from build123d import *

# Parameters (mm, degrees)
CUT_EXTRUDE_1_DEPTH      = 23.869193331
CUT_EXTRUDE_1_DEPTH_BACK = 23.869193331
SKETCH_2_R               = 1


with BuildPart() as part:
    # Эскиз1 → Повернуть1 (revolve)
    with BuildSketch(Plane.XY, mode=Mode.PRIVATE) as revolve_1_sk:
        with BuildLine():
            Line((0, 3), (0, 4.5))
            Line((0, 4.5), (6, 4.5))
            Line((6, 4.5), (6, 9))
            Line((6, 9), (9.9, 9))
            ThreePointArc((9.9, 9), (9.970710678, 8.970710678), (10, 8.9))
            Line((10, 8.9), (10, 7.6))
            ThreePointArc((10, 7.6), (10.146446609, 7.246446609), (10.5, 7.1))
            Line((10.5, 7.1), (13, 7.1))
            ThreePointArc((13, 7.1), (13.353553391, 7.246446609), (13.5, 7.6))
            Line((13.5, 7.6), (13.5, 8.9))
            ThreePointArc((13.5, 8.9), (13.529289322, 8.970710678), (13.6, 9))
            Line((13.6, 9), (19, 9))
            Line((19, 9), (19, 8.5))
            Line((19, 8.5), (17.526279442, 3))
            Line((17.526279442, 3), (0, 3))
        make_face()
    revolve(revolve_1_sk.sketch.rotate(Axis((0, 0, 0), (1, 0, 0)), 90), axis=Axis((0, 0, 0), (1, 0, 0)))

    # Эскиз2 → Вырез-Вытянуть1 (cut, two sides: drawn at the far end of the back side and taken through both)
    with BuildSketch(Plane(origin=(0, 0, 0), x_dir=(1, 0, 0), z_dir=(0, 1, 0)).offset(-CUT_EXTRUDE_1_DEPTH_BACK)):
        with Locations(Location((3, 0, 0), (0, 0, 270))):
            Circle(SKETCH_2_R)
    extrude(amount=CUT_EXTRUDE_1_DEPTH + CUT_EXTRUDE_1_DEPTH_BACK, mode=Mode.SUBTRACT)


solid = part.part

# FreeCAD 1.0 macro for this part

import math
import FreeCAD as App
import Part
import Sketcher
Q = App.Units.Quantity

doc = App.newDocument("Part")
body = doc.addObject("PartDesign::Body", "Body")

# Sketch on XY plane
sketch1 = doc.addObject("Sketcher::SketchObject", "Sketch")
body.addObject(sketch1)
sketch1.AttachmentSupport = (doc.XY_Plane, [""])
sketch1.MapMode = "FlatFace"
sketch1.addGeometry(Part.LineSegment(App.Vector(0, 4.5, 0), App.Vector(0, 3, 0)), False)
sketch1.addGeometry(Part.LineSegment(App.Vector(0, 3, 0), App.Vector(17.526279, 3, 0)), False)
sketch1.addGeometry(Part.LineSegment(App.Vector(17.526279, 3, 0), App.Vector(19, 8.5, 0)), False)
sketch1.addGeometry(Part.LineSegment(App.Vector(19, 8.5, 0), App.Vector(19, 9, 0)), False)
sketch1.addGeometry(Part.LineSegment(App.Vector(19, 9, 0), App.Vector(13.6, 9, 0)), False)
sketch1.addGeometry(Part.ArcOfCircle(Part.Circle(App.Vector(13.6, 8.9, 0), App.Vector(0, 0, 1), 0.1), math.radians(90), math.radians(180)), False)
sketch1.addGeometry(Part.LineSegment(App.Vector(13.5, 8.9, 0), App.Vector(13.5, 7.6, 0)), False)
sketch1.addGeometry(Part.ArcOfCircle(Part.Circle(App.Vector(13, 7.6, 0), App.Vector(0, 0, 1), 0.5), math.radians(-90), math.radians(0)), False)
sketch1.addGeometry(Part.LineSegment(App.Vector(13, 7.1, 0), App.Vector(10.5, 7.1, 0)), False)
sketch1.addGeometry(Part.ArcOfCircle(Part.Circle(App.Vector(10.5, 7.6, 0), App.Vector(0, 0, 1), 0.5), math.radians(180), math.radians(270)), False)
sketch1.addGeometry(Part.LineSegment(App.Vector(10, 7.6, 0), App.Vector(10, 8.9, 0)), False)
sketch1.addGeometry(Part.ArcOfCircle(Part.Circle(App.Vector(9.9, 8.9, 0), App.Vector(0, 0, 1), 0.1), math.radians(0), math.radians(90)), False)
sketch1.addGeometry(Part.LineSegment(App.Vector(9.9, 9, 0), App.Vector(6, 9, 0)), False)
sketch1.addGeometry(Part.LineSegment(App.Vector(6, 9, 0), App.Vector(6, 4.5, 0)), False)
sketch1.addGeometry(Part.LineSegment(App.Vector(6, 4.5, 0), App.Vector(0, 4.5, 0)), False)
sketch1.addConstraint(Sketcher.Constraint("Coincident", 0, 2, 1, 1))
sketch1.addConstraint(Sketcher.Constraint("Coincident", 1, 2, 2, 1))
sketch1.addConstraint(Sketcher.Constraint("Coincident", 2, 2, 3, 1))
sketch1.addConstraint(Sketcher.Constraint("Coincident", 3, 2, 4, 1))
sketch1.addConstraint(Sketcher.Constraint("Tangent", 4, 2, 5, 1))
sketch1.addConstraint(Sketcher.Constraint("Tangent", 5, 2, 6, 1))
sketch1.addConstraint(Sketcher.Constraint("Tangent", 6, 2, 7, 2))
sketch1.addConstraint(Sketcher.Constraint("Tangent", 7, 1, 8, 1))
sketch1.addConstraint(Sketcher.Constraint("Tangent", 8, 2, 9, 2))
sketch1.addConstraint(Sketcher.Constraint("Tangent", 9, 1, 10, 1))
sketch1.addConstraint(Sketcher.Constraint("Tangent", 10, 2, 11, 1))
sketch1.addConstraint(Sketcher.Constraint("Tangent", 11, 2, 12, 1))
sketch1.addConstraint(Sketcher.Constraint("Coincident", 12, 2, 13, 1))
sketch1.addConstraint(Sketcher.Constraint("Coincident", 13, 2, 14, 1))
sketch1.addConstraint(Sketcher.Constraint("Coincident", 14, 2, 0, 1))
sketch1.addConstraint(Sketcher.Constraint("Vertical", 0))
sketch1.addConstraint(Sketcher.Constraint("Horizontal", 1))
sketch1.addConstraint(Sketcher.Constraint("Vertical", 3))
sketch1.addConstraint(Sketcher.Constraint("Horizontal", 4))
sketch1.addConstraint(Sketcher.Constraint("Vertical", 6))
sketch1.addConstraint(Sketcher.Constraint("Horizontal", 8))
sketch1.addConstraint(Sketcher.Constraint("Vertical", 10))
sketch1.addConstraint(Sketcher.Constraint("Horizontal", 12))
sketch1.addConstraint(Sketcher.Constraint("Vertical", 13))
sketch1.addConstraint(Sketcher.Constraint("Horizontal", 14))
sketch1.addConstraint(Sketcher.Constraint("Equal", 7, 9))
sketch1.addConstraint(Sketcher.Constraint("Equal", 5, 11))
sketch1.addConstraint(Sketcher.Constraint("PointOnObject", 0, 2, -2))
sketch1.addConstraint(Sketcher.Constraint("Horizontal", 5, 3, 11, 3))
sketch1.addConstraint(Sketcher.Constraint("Radius", 5, Q("0.1 mm")))
sketch1.addConstraint(Sketcher.Constraint("Radius", 7, Q("0.5 mm")))
sketch1.addConstraint(Sketcher.Constraint("DistanceX", 14, 2, 14, 1, Q("6 mm")))
sketch1.addConstraint(Sketcher.Constraint("Angle", 2, Q("75 deg")))
sketch1.addConstraint(Sketcher.Constraint("DistanceX", 4, 2, 4, 1, Q("5.4 mm")))
sketch1.addConstraint(Sketcher.Constraint("DistanceX", 8, 2, 8, 1, Q("2.5 mm")))
sketch1.addConstraint(Sketcher.Constraint("DistanceX", 12, 2, 12, 1, Q("3.9 mm")))
sketch1.addConstraint(Sketcher.Constraint("DistanceY", 0, 2, 0, 1, Q("1.5 mm")))
sketch1.addConstraint(Sketcher.Constraint("DistanceY", 3, 1, 3, 2, Q("0.5 mm")))
sketch1.addConstraint(Sketcher.Constraint("DistanceY", 6, 2, 6, 1, Q("1.3 mm")))
sketch1.addConstraint(Sketcher.Constraint("DistanceY", 13, 2, 13, 1, Q("4.5 mm")))
sketch1.addConstraint(Sketcher.Constraint("DistanceY", -1, 1, 0, 2, Q("3 mm")))
revolution = doc.addObject("PartDesign::Revolution", "Revolution")
body.addObject(revolution)
revolution.Profile = sketch1
revolution.ReferenceAxis = (sketch1, ["H_Axis"])
revolution.Angle = 360

# Sketch on XZ plane
sketch2 = doc.addObject("Sketcher::SketchObject", "Sketch001")
body.addObject(sketch2)
sketch2.AttachmentSupport = (doc.XZ_Plane, [""])
sketch2.MapMode = "FlatFace"
sketch2.addGeometry(Part.Circle(App.Vector(3, 0, 0), App.Vector(0, 0, 1), 1), False)
sketch2.addConstraint(Sketcher.Constraint("PointOnObject", 0, 3, -1))
sketch2.addConstraint(Sketcher.Constraint("Diameter", 0, Q("2 mm")))
sketch2.addConstraint(Sketcher.Constraint("DistanceX", -1, 1, 0, 3, Q("3 mm")))
pocket1 = doc.addObject("PartDesign::Pocket", "Pocket")
body.addObject(pocket1)
pocket1.Profile = sketch2
pocket1.Type = "ThroughAll"
pocket1.Midplane = True

doc.recompute()
